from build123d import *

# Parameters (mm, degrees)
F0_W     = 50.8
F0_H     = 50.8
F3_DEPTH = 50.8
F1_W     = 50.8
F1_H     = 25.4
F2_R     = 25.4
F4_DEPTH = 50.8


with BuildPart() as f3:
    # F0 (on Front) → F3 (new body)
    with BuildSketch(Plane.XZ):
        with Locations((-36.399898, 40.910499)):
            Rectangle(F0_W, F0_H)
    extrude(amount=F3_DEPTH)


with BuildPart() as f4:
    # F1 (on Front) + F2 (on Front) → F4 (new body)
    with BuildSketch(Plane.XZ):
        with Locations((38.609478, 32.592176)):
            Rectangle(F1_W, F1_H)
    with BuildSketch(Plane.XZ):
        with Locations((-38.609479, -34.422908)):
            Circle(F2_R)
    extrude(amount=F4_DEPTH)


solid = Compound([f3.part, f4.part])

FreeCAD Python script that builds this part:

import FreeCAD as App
import Part
import Sketcher

V = App.Vector
Q = App.Units.Quantity


def add_polygon(sketch, points):
    """Adds a closed chain of lines whose ends are joined by coincident constraints."""
    first, n = sketch.GeometryCount, len(points)
    for a, b in zip(points, points[1:] + points[:1]):
        sketch.addGeometry(Part.LineSegment(App.Vector(*a, 0), App.Vector(*b, 0)), False)
    for i in range(n):
        sketch.addConstraint(Sketcher.Constraint("Coincident", first + i, 2, first + (i + 1) % n, 1))

doc = App.newDocument("Part")
body = doc.addObject("PartDesign::Body", "Body")

# Sketch on XZ plane
sketch1 = body.newObject("Sketcher::SketchObject", "Sketch")
sketch1.AttachmentSupport = (doc.getObject("XZ_Plane"), [""])
sketch1.MapMode = "FlatFace"
add_polygon(sketch1, [(-62, 66), (-62, 16), (-11, 16), (-11, 66)])  # lines 0-3
sketch1.addConstraint([
    Sketcher.Constraint("Vertical", 0),
    Sketcher.Constraint("Horizontal", 1),
    Sketcher.Constraint("Vertical", 2),
    Sketcher.Constraint("Horizontal", 3),
    Sketcher.Constraint("Equal", 3, 0),
    Sketcher.Constraint("DistanceX", 1, 1, 1, 2, Q("2 in")),
    Sketcher.Constraint("DistanceY", -1, 1, 0, 2, Q("15.510499 mm")),
    Sketcher.Constraint("DistanceX", 0, 2, -1, 1, Q("61.799898 mm")),
])
pad1 = body.newObject("PartDesign::Pad", "Pad")
pad1.Profile = sketch1
pad1.Length = Q("2 in")
body2 = doc.addObject("PartDesign::Body", "Body001")
body2.AllowCompound = True

# Sketch on XZ plane
sketch2 = body2.newObject("Sketcher::SketchObject", "Sketch001")
sketch2.AttachmentSupport = (doc.getObject("XZ_Plane001"), [""])
sketch2.MapMode = "FlatFace"
add_polygon(sketch2, [(13, 45), (13, 20), (64, 20), (64, 45)])  # lines 0-3
sketch2.addGeometry(Part.Circle(V(-39, -34, 0), V(0, 0, 1), 25), False)  # 4
sketch2.addConstraint([
    Sketcher.Constraint("Vertical", 0),
    Sketcher.Constraint("Horizontal", 1),
    Sketcher.Constraint("Vertical", 2),
    Sketcher.Constraint("Horizontal", 3),
    Sketcher.Constraint("Diameter", 4, Q("2 in")),
    Sketcher.Constraint("DistanceX", 1, 1, 1, 2, Q("2 in")),
    Sketcher.Constraint("DistanceY", 0, 2, 0, 1, Q("1 in")),
    Sketcher.Constraint("DistanceX", 4, 3, -1, 1, Q("38.609479 mm")),
    Sketcher.Constraint("DistanceX", -1, 1, 0, 2, Q("13.209478 mm")),
    Sketcher.Constraint("DistanceY", 4, 3, -1, 1, Q("34.422908 mm")),
    Sketcher.Constraint("DistanceY", -1, 1, 0, 2, Q("19.892176 mm")),
])
pad2 = body2.newObject("PartDesign::Pad", "Pad001")
pad2.Profile = sketch2
pad2.Length = Q("2 in")

doc.recompute()
